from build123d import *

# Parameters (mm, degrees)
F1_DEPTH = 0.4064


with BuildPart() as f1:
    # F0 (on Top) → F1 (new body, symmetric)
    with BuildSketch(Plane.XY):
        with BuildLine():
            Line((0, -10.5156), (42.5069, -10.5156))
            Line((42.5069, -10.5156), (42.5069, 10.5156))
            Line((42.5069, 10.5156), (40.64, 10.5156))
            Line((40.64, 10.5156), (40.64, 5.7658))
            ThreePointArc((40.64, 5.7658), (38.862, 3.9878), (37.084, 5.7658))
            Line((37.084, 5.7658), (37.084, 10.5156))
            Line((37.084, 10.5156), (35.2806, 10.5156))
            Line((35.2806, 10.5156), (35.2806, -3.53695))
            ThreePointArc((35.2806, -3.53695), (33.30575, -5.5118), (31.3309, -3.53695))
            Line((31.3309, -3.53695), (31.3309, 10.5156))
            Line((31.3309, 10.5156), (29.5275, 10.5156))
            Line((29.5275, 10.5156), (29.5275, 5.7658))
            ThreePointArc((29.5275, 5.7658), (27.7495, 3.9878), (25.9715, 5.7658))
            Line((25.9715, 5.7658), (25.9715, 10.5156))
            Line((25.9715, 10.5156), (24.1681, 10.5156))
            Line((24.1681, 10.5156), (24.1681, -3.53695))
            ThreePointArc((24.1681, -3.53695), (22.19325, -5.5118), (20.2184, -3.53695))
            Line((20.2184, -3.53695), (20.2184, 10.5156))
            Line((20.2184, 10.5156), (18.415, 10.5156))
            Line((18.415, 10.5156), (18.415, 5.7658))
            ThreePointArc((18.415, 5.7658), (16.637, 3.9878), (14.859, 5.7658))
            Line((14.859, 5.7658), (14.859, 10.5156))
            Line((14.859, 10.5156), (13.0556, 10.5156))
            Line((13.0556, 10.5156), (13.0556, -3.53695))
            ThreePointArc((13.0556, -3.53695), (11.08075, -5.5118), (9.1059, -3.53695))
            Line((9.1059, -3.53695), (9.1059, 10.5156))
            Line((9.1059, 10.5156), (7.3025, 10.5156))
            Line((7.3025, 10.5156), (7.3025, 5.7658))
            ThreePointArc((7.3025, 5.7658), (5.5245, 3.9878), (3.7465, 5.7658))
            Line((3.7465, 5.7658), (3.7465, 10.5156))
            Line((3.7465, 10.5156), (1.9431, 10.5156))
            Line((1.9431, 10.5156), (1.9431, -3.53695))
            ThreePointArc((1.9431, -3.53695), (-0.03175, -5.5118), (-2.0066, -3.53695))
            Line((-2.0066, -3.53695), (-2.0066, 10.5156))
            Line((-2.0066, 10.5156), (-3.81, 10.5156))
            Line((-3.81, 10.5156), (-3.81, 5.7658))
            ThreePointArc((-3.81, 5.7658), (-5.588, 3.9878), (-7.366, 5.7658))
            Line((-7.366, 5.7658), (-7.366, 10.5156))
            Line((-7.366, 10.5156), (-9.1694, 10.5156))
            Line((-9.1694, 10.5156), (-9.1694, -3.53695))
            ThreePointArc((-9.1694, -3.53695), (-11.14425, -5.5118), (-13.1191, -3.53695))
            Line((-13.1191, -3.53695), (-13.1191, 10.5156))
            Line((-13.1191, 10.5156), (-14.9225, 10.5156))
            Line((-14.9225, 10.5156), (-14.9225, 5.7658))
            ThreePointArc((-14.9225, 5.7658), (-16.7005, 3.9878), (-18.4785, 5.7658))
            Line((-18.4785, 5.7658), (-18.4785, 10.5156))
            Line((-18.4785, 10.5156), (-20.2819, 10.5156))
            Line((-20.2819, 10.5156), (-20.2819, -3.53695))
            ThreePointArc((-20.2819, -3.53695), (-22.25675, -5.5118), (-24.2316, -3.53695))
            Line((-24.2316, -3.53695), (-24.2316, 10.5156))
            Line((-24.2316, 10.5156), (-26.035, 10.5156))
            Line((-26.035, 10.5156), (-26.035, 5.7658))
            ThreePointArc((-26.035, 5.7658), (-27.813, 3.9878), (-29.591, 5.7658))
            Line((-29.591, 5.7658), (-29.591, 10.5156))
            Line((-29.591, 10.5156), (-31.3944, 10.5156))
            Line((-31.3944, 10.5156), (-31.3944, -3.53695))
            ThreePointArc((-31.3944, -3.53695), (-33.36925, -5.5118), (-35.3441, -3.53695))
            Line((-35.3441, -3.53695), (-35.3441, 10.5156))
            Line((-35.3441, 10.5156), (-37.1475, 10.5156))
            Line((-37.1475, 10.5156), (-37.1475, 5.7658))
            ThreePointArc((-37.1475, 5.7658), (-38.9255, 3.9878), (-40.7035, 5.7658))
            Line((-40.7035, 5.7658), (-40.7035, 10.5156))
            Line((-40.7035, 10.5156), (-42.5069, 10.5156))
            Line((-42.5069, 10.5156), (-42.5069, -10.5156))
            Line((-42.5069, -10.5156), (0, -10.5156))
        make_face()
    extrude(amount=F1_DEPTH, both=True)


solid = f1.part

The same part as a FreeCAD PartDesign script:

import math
import FreeCAD as App
import Part
import Sketcher
Q = App.Units.Quantity

doc = App.newDocument("Part")
body = doc.addObject("PartDesign::Body", "Body")

# Sketch on XY plane
sketch1 = body.newObject("Sketcher::SketchObject", "Sketch")
sketch1.AttachmentSupport = (doc.getObject("XY_Plane"), [""])
sketch1.MapMode = "FlatFace"
sketch1.addGeometry([
    Part.LineSegment(App.Vector(42.5, -10.5, 0), App.Vector(42.5, 10.5, 0)),  # 0
    Part.LineSegment(App.Vector(42.5, 10.5, 0), App.Vector(40.6, 10.5, 0)),  # 1
    Part.LineSegment(App.Vector(40.6, 10.5, 0), App.Vector(40.6, 5.8, 0)),  # 2
    Part.ArcOfCircle(Part.Circle(App.Vector(38.9, 5.8, 0), App.Vector(0, 0, 1), 1.8), math.radians(180), math.radians(360)),  # 3
    Part.LineSegment(App.Vector(37.1, 5.8, 0), App.Vector(37.1, 10.5, 0)),  # 4
    Part.LineSegment(App.Vector(37.1, 10.5, 0), App.Vector(35.3, 10.5, 0)),  # 5
    Part.LineSegment(App.Vector(35.3, 10.5, 0), App.Vector(35.3, -3.5, 0)),  # 6
    Part.ArcOfCircle(Part.Circle(App.Vector(33.3, -3.5, 0), App.Vector(0, 0, 1), 2), math.radians(180), math.radians(360)),  # 7
    Part.LineSegment(App.Vector(31.3, -3.5, 0), App.Vector(31.3, 10.5, 0)),  # 8
    Part.LineSegment(App.Vector(31.3, 10.5, 0), App.Vector(29.5, 10.5, 0)),  # 9
    Part.LineSegment(App.Vector(29.5, 10.5, 0), App.Vector(29.5, 5.8, 0)),  # 10
    Part.ArcOfCircle(Part.Circle(App.Vector(27.7, 5.8, 0), App.Vector(0, 0, 1), 1.8), math.radians(180), math.radians(360)),  # 11
    Part.LineSegment(App.Vector(26, 5.8, 0), App.Vector(26, 10.5, 0)),  # 12
    Part.LineSegment(App.Vector(26, 10.5, 0), App.Vector(24.2, 10.5, 0)),  # 13
    Part.LineSegment(App.Vector(24.2, 10.5, 0), App.Vector(24.2, -3.5, 0)),  # 14
    Part.ArcOfCircle(Part.Circle(App.Vector(22.2, -3.5, 0), App.Vector(0, 0, 1), 2), math.radians(180), math.radians(360)),  # 15
    Part.LineSegment(App.Vector(20.2, -3.5, 0), App.Vector(20.2, 10.5, 0)),  # 16
    Part.LineSegment(App.Vector(20.2, 10.5, 0), App.Vector(18.4, 10.5, 0)),  # 17
    Part.LineSegment(App.Vector(18.4, 10.5, 0), App.Vector(18.4, 5.8, 0)),  # 18
    Part.ArcOfCircle(Part.Circle(App.Vector(16.6, 5.8, 0), App.Vector(0, 0, 1), 1.8), math.radians(180), math.radians(360)),  # 19
    Part.LineSegment(App.Vector(14.9, 5.8, 0), App.Vector(14.9, 10.5, 0)),  # 20
    Part.LineSegment(App.Vector(14.9, 10.5, 0), App.Vector(13.1, 10.5, 0)),  # 21
    Part.LineSegment(App.Vector(13.1, 10.5, 0), App.Vector(13.1, -3.5, 0)),  # 22
    Part.ArcOfCircle(Part.Circle(App.Vector(11.1, -3.5, 0), App.Vector(0, 0, 1), 2), math.radians(180), math.radians(360)),  # 23
    Part.LineSegment(App.Vector(9.1, -3.5, 0), App.Vector(9.1, 10.5, 0)),  # 24
    Part.LineSegment(App.Vector(9.1, 10.5, 0), App.Vector(7.3, 10.5, 0)),  # 25
    Part.LineSegment(App.Vector(7.3, 10.5, 0), App.Vector(7.3, 5.8, 0)),  # 26
    Part.ArcOfCircle(Part.Circle(App.Vector(5.5, 5.8, 0), App.Vector(0, 0, 1), 1.8), math.radians(180), math.radians(360)),  # 27
    Part.LineSegment(App.Vector(3.7, 5.8, 0), App.Vector(3.7, 10.5, 0)),  # 28
    Part.LineSegment(App.Vector(3.7, 10.5, 0), App.Vector(1.9, 10.5, 0)),  # 29
    Part.LineSegment(App.Vector(1.9, 10.5, 0), App.Vector(1.9, -3.5, 0)),  # 30
    Part.ArcOfCircle(Part.Circle(App.Vector(0, -3.5, 0), App.Vector(0, 0, 1), 2), math.radians(180), math.radians(360)),  # 31
    Part.LineSegment(App.Vector(-2, -3.5, 0), App.Vector(-2, 10.5, 0)),  # 32
    Part.LineSegment(App.Vector(-2, 10.5, 0), App.Vector(-3.8, 10.5, 0)),  # 33
    Part.LineSegment(App.Vector(-3.8, 10.5, 0), App.Vector(-3.8, 5.8, 0)),  # 34
    Part.ArcOfCircle(Part.Circle(App.Vector(-5.6, 5.8, 0), App.Vector(0, 0, 1), 1.8), math.radians(180), math.radians(360)),  # 35
    Part.LineSegment(App.Vector(-7.4, 5.8, 0), App.Vector(-7.4, 10.5, 0)),  # 36
    Part.LineSegment(App.Vector(-7.4, 10.5, 0), App.Vector(-9.2, 10.5, 0)),  # 37
    Part.LineSegment(App.Vector(-9.2, 10.5, 0), App.Vector(-9.2, -3.5, 0)),  # 38
    Part.ArcOfCircle(Part.Circle(App.Vector(-11.1, -3.5, 0), App.Vector(0, 0, 1), 2), math.radians(180), math.radians(360)),  # 39
    Part.LineSegment(App.Vector(-13.1, -3.5, 0), App.Vector(-13.1, 10.5, 0)),  # 40
    Part.LineSegment(App.Vector(-13.1, 10.5, 0), App.Vector(-14.9, 10.5, 0)),  # 41
    Part.LineSegment(App.Vector(-14.9, 10.5, 0), App.Vector(-14.9, 5.8, 0)),  # 42
    Part.ArcOfCircle(Part.Circle(App.Vector(-16.7, 5.8, 0), App.Vector(0, 0, 1), 1.8), math.radians(180), math.radians(360)),  # 43
    Part.LineSegment(App.Vector(-18.5, 5.8, 0), App.Vector(-18.5, 10.5, 0)),  # 44
    Part.LineSegment(App.Vector(-18.5, 10.5, 0), App.Vector(-20.3, 10.5, 0)),  # 45
    Part.LineSegment(App.Vector(-20.3, 10.5, 0), App.Vector(-20.3, -3.5, 0)),  # 46
    Part.ArcOfCircle(Part.Circle(App.Vector(-22.3, -3.5, 0), App.Vector(0, 0, 1), 2), math.radians(180), math.radians(360)),  # 47
    Part.LineSegment(App.Vector(-24.2, -3.5, 0), App.Vector(-24.2, 10.5, 0)),  # 48
    Part.LineSegment(App.Vector(-24.2, 10.5, 0), App.Vector(-26, 10.5, 0)),  # 49
    Part.LineSegment(App.Vector(-26, 10.5, 0), App.Vector(-26, 5.8, 0)),  # 50
    Part.ArcOfCircle(Part.Circle(App.Vector(-27.8, 5.8, 0), App.Vector(0, 0, 1), 1.8), math.radians(180), math.radians(360)),  # 51
    Part.LineSegment(App.Vector(-29.6, 5.8, 0), App.Vector(-29.6, 10.5, 0)),  # 52
    Part.LineSegment(App.Vector(-29.6, 10.5, 0), App.Vector(-31.4, 10.5, 0)),  # 53
    Part.LineSegment(App.Vector(-31.4, 10.5, 0), App.Vector(-31.4, -3.5, 0)),  # 54
    Part.ArcOfCircle(Part.Circle(App.Vector(-33.4, -3.5, 0), App.Vector(0, 0, 1), 2), math.radians(180), math.radians(360)),  # 55
    Part.LineSegment(App.Vector(-35.3, -3.5, 0), App.Vector(-35.3, 10.5, 0)),  # 56
    Part.LineSegment(App.Vector(-35.3, 10.5, 0), App.Vector(-37.1, 10.5, 0)),  # 57
    Part.LineSegment(App.Vector(-37.1, 10.5, 0), App.Vector(-37.1, 5.8, 0)),  # 58
    Part.ArcOfCircle(Part.Circle(App.Vector(-38.9, 5.8, 0), App.Vector(0, 0, 1), 1.8), math.radians(180), math.radians(360)),  # 59
    Part.LineSegment(App.Vector(-40.7, 5.8, 0), App.Vector(-40.7, 10.5, 0)),  # 60
    Part.LineSegment(App.Vector(-40.7, 10.5, 0), App.Vector(-42.5, 10.5, 0)),  # 61
    Part.LineSegment(App.Vector(-42.5, 10.5, 0), App.Vector(-42.5, -10.5, 0)),  # 62
    Part.LineSegment(App.Vector(-42.5, -10.5, 0), App.Vector(42.5, -10.5, 0)),  # 63
], False)
sketch1.addConstraint([
    Sketcher.Constraint("Coincident", 0, 2, 1, 1),
    Sketcher.Constraint("Coincident", 1, 2, 2, 1),
    Sketcher.Constraint("Tangent", 2, 2, 3, 2),
    Sketcher.Constraint("Tangent", 3, 1, 4, 1),
    Sketcher.Constraint("Coincident", 4, 2, 5, 1),
    Sketcher.Constraint("Coincident", 5, 2, 6, 1),
    Sketcher.Constraint("Tangent", 6, 2, 7, 2),
    Sketcher.Constraint("Tangent", 7, 1, 8, 1),
    Sketcher.Constraint("Coincident", 8, 2, 9, 1),
    Sketcher.Constraint("Coincident", 9, 2, 10, 1),
    Sketcher.Constraint("Tangent", 10, 2, 11, 2),
    Sketcher.Constraint("Tangent", 11, 1, 12, 1),
    Sketcher.Constraint("Coincident", 12, 2, 13, 1),
    Sketcher.Constraint("Coincident", 13, 2, 14, 1),
    Sketcher.Constraint("Tangent", 14, 2, 15, 2),
    Sketcher.Constraint("Tangent", 15, 1, 16, 1),
    Sketcher.Constraint("Coincident", 16, 2, 17, 1),
    Sketcher.Constraint("Coincident", 17, 2, 18, 1),
    Sketcher.Constraint("Tangent", 18, 2, 19, 2),
    Sketcher.Constraint("Tangent", 19, 1, 20, 1),
    Sketcher.Constraint("Coincident", 20, 2, 21, 1),
    Sketcher.Constraint("Coincident", 21, 2, 22, 1),
    Sketcher.Constraint("Tangent", 22, 2, 23, 2),
    Sketcher.Constraint("Tangent", 23, 1, 24, 1),
    Sketcher.Constraint("Coincident", 24, 2, 25, 1),
    Sketcher.Constraint("Coincident", 25, 2, 26, 1),
    Sketcher.Constraint("Tangent", 26, 2, 27, 2),
    Sketcher.Constraint("Tangent", 27, 1, 28, 1),
    Sketcher.Constraint("Coincident", 28, 2, 29, 1),
    Sketcher.Constraint("Coincident", 29, 2, 30, 1),
    Sketcher.Constraint("Tangent", 30, 2, 31, 2),
    Sketcher.Constraint("Tangent", 31, 1, 32, 1),
    Sketcher.Constraint("Coincident", 32, 2, 33, 1),
    Sketcher.Constraint("Coincident", 33, 2, 34, 1),
    Sketcher.Constraint("Tangent", 34, 2, 35, 2),
    Sketcher.Constraint("Tangent", 35, 1, 36, 1),
    Sketcher.Constraint("Coincident", 36, 2, 37, 1),
    Sketcher.Constraint("Coincident", 37, 2, 38, 1),
    Sketcher.Constraint("Tangent", 38, 2, 39, 2),
    Sketcher.Constraint("Tangent", 39, 1, 40, 1),
    Sketcher.Constraint("Coincident", 40, 2, 41, 1),
    Sketcher.Constraint("Coincident", 41, 2, 42, 1),
    Sketcher.Constraint("Tangent", 42, 2, 43, 2),
    Sketcher.Constraint("Tangent", 43, 1, 44, 1),
    Sketcher.Constraint("Coincident", 44, 2, 45, 1),
    Sketcher.Constraint("Coincident", 45, 2, 46, 1),
    Sketcher.Constraint("Tangent", 46, 2, 47, 2),
    Sketcher.Constraint("Tangent", 47, 1, 48, 1),
    Sketcher.Constraint("Coincident", 48, 2, 49, 1),
    Sketcher.Constraint("Coincident", 49, 2, 50, 1),
    Sketcher.Constraint("Tangent", 50, 2, 51, 2),
    Sketcher.Constraint("Tangent", 51, 1, 52, 1),
    Sketcher.Constraint("Coincident", 52, 2, 53, 1),
    Sketcher.Constraint("Coincident", 53, 2, 54, 1),
    Sketcher.Constraint("Tangent", 54, 2, 55, 2),
    Sketcher.Constraint("Tangent", 55, 1, 56, 1),
    Sketcher.Constraint("Coincident", 56, 2, 57, 1),
    Sketcher.Constraint("Coincident", 57, 2, 58, 1),
    Sketcher.Constraint("Tangent", 58, 2, 59, 2),
    Sketcher.Constraint("Tangent", 59, 1, 60, 1),
    Sketcher.Constraint("Coincident", 60, 2, 61, 1),
    Sketcher.Constraint("Coincident", 61, 2, 62, 1),
    Sketcher.Constraint("Coincident", 62, 2, 63, 1),
    Sketcher.Constraint("Coincident", 63, 2, 0, 1),
    Sketcher.Constraint("Vertical", 0),
    Sketcher.Constraint("Horizontal", 1),
    Sketcher.Constraint("Vertical", 2),
    Sketcher.Constraint("Vertical", 4),
    Sketcher.Constraint("Horizontal", 5),
    Sketcher.Constraint("Vertical", 6),
    Sketcher.Constraint("Vertical", 8),
    Sketcher.Constraint("Horizontal", 9),
    Sketcher.Constraint("Vertical", 10),
    Sketcher.Constraint("Vertical", 12),
    Sketcher.Constraint("Horizontal", 13),
    Sketcher.Constraint("Vertical", 14),
    Sketcher.Constraint("Vertical", 16),
    Sketcher.Constraint("Horizontal", 17),
    Sketcher.Constraint("Vertical", 18),
    Sketcher.Constraint("Vertical", 20),
    Sketcher.Constraint("Horizontal", 21),
    Sketcher.Constraint("Vertical", 22),
    Sketcher.Constraint("Vertical", 24),
    Sketcher.Constraint("Horizontal", 25),
    Sketcher.Constraint("Vertical", 26),
    Sketcher.Constraint("Vertical", 28),
    Sketcher.Constraint("Horizontal", 29),
    Sketcher.Constraint("Vertical", 30),
    Sketcher.Constraint("Vertical", 32),
    Sketcher.Constraint("Horizontal", 33),
    Sketcher.Constraint("Vertical", 34),
    Sketcher.Constraint("Vertical", 36),
    Sketcher.Constraint("Horizontal", 37),
    Sketcher.Constraint("Vertical", 38),
    Sketcher.Constraint("Vertical", 40),
    Sketcher.Constraint("Horizontal", 41),
    Sketcher.Constraint("Vertical", 42),
    Sketcher.Constraint("Vertical", 44),
    Sketcher.Constraint("Horizontal", 45),
    Sketcher.Constraint("Vertical", 46),
    Sketcher.Constraint("Vertical", 48),
    Sketcher.Constraint("Horizontal", 49),
    Sketcher.Constraint("Vertical", 50),
    Sketcher.Constraint("Vertical", 52),
    Sketcher.Constraint("Horizontal", 53),
    Sketcher.Constraint("Vertical", 54),
    Sketcher.Constraint("Vertical", 56),
    Sketcher.Constraint("Horizontal", 57),
    Sketcher.Constraint("Vertical", 58),
    Sketcher.Constraint("Vertical", 60),
    Sketcher.Constraint("Horizontal", 61),
    Sketcher.Constraint("Vertical", 62),
    Sketcher.Constraint("Horizontal", 63),
    Sketcher.Constraint("Equal", 3, 11),
    Sketcher.Constraint("Equal", 7, 15),
    Sketcher.Constraint("Equal", 11, 19),
    Sketcher.Constraint("Equal", 15, 23),
    Sketcher.Constraint("Equal", 19, 27),
    Sketcher.Constraint("Equal", 23, 31),
    Sketcher.Constraint("Equal", 27, 35),
    Sketcher.Constraint("Equal", 31, 39),
    Sketcher.Constraint("Equal", 35, 43),
    Sketcher.Constraint("Equal", 39, 47),
    Sketcher.Constraint("Equal", 43, 51),
    Sketcher.Constraint("Equal", 47, 55),
    Sketcher.Constraint("Equal", 51, 59),
    Sketcher.Constraint("Symmetric", 0, 2, 62, 2, -1, 1),
    Sketcher.Constraint("Horizontal", 3, 3, 11, 3),
    Sketcher.Constraint("Horizontal", 7, 3, 15, 3),
    Sketcher.Constraint("Horizontal", 11, 3, 19, 3),
    Sketcher.Constraint("Horizontal", 15, 3, 23, 3),
    Sketcher.Constraint("Horizontal", 19, 3, 27, 3),
    Sketcher.Constraint("Horizontal", 23, 3, 31, 3),
    Sketcher.Constraint("Horizontal", 27, 3, 35, 3),
    Sketcher.Constraint("Horizontal", 31, 3, 39, 3),
    Sketcher.Constraint("Horizontal", 35, 3, 43, 3),
    Sketcher.Constraint("Horizontal", 39, 3, 47, 3),
    Sketcher.Constraint("Horizontal", 43, 3, 51, 3),
    Sketcher.Constraint("Horizontal", 47, 3, 55, 3),
    Sketcher.Constraint("Horizontal", 51, 3, 59, 3),
    Sketcher.Constraint("Horizontal", 1, 2, 4, 2),
    Sketcher.Constraint("Horizontal", 5, 2, 8, 2),
    Sketcher.Constraint("Horizontal", 9, 2, 12, 2),
    Sketcher.Constraint("Horizontal", 13, 2, 16, 2),
    Sketcher.Constraint("Horizontal", 17, 2, 20, 2),
    Sketcher.Constraint("Horizontal", 21, 2, 24, 2),
    Sketcher.Constraint("Horizontal", 25, 2, 28, 2),
    Sketcher.Constraint("Horizontal", 29, 2, 32, 2),
    Sketcher.Constraint("Horizontal", 33, 2, 36, 2),
    Sketcher.Constraint("Horizontal", 37, 2, 40, 2),
    Sketcher.Constraint("Horizontal", 41, 2, 44, 2),
    Sketcher.Constraint("Horizontal", 45, 2, 48, 2),
    Sketcher.Constraint("Horizontal", 49, 2, 52, 2),
    Sketcher.Constraint("Horizontal", 53, 2, 56, 2),
    Sketcher.Constraint("Horizontal", 57, 2, 60, 2),
    Sketcher.Constraint("Equal", 5, 9),
    Sketcher.Constraint("Equal", 9, 13),
    Sketcher.Constraint("Equal", 13, 17),
    Sketcher.Constraint("Equal", 17, 21),
    Sketcher.Constraint("Equal", 21, 25),
    Sketcher.Constraint("Equal", 25, 29),
    Sketcher.Constraint("Equal", 29, 33),
    Sketcher.Constraint("Equal", 33, 37),
    Sketcher.Constraint("Equal", 37, 41),
    Sketcher.Constraint("Equal", 41, 45),
    Sketcher.Constraint("Equal", 45, 49),
    Sketcher.Constraint("Equal", 49, 53),
    Sketcher.Constraint("Equal", 53, 57),
    Sketcher.Constraint("Equal", 57, 61),
    Sketcher.Constraint("Radius", 3, Q("0.07 in")),
    Sketcher.Constraint("DistanceX", -1, 1, 1, 2, Q("1.6 in")),
    Sketcher.Constraint("DistanceX", 5, 2, 5, 1, Q("0.071 in")),
    Sketcher.Constraint("DistanceX", 63, 1, 63, 2, Q("3.347 in")),
    Sketcher.Constraint("DistanceY", 0, 1, 0, 2, Q("0.828 in")),
    Sketcher.Constraint("DistanceY", 2, 2, 2, 1, Q("0.187 in")),
    Sketcher.Constraint("DistanceY", 6, 2, 6, 1, Q("14.05255 mm")),
])
pad1 = body.newObject("PartDesign::Pad", "Pad")
pad1.Profile = sketch1
pad1.Length = Q("0.032 in")
pad1.Midplane = True

doc.recompute()
